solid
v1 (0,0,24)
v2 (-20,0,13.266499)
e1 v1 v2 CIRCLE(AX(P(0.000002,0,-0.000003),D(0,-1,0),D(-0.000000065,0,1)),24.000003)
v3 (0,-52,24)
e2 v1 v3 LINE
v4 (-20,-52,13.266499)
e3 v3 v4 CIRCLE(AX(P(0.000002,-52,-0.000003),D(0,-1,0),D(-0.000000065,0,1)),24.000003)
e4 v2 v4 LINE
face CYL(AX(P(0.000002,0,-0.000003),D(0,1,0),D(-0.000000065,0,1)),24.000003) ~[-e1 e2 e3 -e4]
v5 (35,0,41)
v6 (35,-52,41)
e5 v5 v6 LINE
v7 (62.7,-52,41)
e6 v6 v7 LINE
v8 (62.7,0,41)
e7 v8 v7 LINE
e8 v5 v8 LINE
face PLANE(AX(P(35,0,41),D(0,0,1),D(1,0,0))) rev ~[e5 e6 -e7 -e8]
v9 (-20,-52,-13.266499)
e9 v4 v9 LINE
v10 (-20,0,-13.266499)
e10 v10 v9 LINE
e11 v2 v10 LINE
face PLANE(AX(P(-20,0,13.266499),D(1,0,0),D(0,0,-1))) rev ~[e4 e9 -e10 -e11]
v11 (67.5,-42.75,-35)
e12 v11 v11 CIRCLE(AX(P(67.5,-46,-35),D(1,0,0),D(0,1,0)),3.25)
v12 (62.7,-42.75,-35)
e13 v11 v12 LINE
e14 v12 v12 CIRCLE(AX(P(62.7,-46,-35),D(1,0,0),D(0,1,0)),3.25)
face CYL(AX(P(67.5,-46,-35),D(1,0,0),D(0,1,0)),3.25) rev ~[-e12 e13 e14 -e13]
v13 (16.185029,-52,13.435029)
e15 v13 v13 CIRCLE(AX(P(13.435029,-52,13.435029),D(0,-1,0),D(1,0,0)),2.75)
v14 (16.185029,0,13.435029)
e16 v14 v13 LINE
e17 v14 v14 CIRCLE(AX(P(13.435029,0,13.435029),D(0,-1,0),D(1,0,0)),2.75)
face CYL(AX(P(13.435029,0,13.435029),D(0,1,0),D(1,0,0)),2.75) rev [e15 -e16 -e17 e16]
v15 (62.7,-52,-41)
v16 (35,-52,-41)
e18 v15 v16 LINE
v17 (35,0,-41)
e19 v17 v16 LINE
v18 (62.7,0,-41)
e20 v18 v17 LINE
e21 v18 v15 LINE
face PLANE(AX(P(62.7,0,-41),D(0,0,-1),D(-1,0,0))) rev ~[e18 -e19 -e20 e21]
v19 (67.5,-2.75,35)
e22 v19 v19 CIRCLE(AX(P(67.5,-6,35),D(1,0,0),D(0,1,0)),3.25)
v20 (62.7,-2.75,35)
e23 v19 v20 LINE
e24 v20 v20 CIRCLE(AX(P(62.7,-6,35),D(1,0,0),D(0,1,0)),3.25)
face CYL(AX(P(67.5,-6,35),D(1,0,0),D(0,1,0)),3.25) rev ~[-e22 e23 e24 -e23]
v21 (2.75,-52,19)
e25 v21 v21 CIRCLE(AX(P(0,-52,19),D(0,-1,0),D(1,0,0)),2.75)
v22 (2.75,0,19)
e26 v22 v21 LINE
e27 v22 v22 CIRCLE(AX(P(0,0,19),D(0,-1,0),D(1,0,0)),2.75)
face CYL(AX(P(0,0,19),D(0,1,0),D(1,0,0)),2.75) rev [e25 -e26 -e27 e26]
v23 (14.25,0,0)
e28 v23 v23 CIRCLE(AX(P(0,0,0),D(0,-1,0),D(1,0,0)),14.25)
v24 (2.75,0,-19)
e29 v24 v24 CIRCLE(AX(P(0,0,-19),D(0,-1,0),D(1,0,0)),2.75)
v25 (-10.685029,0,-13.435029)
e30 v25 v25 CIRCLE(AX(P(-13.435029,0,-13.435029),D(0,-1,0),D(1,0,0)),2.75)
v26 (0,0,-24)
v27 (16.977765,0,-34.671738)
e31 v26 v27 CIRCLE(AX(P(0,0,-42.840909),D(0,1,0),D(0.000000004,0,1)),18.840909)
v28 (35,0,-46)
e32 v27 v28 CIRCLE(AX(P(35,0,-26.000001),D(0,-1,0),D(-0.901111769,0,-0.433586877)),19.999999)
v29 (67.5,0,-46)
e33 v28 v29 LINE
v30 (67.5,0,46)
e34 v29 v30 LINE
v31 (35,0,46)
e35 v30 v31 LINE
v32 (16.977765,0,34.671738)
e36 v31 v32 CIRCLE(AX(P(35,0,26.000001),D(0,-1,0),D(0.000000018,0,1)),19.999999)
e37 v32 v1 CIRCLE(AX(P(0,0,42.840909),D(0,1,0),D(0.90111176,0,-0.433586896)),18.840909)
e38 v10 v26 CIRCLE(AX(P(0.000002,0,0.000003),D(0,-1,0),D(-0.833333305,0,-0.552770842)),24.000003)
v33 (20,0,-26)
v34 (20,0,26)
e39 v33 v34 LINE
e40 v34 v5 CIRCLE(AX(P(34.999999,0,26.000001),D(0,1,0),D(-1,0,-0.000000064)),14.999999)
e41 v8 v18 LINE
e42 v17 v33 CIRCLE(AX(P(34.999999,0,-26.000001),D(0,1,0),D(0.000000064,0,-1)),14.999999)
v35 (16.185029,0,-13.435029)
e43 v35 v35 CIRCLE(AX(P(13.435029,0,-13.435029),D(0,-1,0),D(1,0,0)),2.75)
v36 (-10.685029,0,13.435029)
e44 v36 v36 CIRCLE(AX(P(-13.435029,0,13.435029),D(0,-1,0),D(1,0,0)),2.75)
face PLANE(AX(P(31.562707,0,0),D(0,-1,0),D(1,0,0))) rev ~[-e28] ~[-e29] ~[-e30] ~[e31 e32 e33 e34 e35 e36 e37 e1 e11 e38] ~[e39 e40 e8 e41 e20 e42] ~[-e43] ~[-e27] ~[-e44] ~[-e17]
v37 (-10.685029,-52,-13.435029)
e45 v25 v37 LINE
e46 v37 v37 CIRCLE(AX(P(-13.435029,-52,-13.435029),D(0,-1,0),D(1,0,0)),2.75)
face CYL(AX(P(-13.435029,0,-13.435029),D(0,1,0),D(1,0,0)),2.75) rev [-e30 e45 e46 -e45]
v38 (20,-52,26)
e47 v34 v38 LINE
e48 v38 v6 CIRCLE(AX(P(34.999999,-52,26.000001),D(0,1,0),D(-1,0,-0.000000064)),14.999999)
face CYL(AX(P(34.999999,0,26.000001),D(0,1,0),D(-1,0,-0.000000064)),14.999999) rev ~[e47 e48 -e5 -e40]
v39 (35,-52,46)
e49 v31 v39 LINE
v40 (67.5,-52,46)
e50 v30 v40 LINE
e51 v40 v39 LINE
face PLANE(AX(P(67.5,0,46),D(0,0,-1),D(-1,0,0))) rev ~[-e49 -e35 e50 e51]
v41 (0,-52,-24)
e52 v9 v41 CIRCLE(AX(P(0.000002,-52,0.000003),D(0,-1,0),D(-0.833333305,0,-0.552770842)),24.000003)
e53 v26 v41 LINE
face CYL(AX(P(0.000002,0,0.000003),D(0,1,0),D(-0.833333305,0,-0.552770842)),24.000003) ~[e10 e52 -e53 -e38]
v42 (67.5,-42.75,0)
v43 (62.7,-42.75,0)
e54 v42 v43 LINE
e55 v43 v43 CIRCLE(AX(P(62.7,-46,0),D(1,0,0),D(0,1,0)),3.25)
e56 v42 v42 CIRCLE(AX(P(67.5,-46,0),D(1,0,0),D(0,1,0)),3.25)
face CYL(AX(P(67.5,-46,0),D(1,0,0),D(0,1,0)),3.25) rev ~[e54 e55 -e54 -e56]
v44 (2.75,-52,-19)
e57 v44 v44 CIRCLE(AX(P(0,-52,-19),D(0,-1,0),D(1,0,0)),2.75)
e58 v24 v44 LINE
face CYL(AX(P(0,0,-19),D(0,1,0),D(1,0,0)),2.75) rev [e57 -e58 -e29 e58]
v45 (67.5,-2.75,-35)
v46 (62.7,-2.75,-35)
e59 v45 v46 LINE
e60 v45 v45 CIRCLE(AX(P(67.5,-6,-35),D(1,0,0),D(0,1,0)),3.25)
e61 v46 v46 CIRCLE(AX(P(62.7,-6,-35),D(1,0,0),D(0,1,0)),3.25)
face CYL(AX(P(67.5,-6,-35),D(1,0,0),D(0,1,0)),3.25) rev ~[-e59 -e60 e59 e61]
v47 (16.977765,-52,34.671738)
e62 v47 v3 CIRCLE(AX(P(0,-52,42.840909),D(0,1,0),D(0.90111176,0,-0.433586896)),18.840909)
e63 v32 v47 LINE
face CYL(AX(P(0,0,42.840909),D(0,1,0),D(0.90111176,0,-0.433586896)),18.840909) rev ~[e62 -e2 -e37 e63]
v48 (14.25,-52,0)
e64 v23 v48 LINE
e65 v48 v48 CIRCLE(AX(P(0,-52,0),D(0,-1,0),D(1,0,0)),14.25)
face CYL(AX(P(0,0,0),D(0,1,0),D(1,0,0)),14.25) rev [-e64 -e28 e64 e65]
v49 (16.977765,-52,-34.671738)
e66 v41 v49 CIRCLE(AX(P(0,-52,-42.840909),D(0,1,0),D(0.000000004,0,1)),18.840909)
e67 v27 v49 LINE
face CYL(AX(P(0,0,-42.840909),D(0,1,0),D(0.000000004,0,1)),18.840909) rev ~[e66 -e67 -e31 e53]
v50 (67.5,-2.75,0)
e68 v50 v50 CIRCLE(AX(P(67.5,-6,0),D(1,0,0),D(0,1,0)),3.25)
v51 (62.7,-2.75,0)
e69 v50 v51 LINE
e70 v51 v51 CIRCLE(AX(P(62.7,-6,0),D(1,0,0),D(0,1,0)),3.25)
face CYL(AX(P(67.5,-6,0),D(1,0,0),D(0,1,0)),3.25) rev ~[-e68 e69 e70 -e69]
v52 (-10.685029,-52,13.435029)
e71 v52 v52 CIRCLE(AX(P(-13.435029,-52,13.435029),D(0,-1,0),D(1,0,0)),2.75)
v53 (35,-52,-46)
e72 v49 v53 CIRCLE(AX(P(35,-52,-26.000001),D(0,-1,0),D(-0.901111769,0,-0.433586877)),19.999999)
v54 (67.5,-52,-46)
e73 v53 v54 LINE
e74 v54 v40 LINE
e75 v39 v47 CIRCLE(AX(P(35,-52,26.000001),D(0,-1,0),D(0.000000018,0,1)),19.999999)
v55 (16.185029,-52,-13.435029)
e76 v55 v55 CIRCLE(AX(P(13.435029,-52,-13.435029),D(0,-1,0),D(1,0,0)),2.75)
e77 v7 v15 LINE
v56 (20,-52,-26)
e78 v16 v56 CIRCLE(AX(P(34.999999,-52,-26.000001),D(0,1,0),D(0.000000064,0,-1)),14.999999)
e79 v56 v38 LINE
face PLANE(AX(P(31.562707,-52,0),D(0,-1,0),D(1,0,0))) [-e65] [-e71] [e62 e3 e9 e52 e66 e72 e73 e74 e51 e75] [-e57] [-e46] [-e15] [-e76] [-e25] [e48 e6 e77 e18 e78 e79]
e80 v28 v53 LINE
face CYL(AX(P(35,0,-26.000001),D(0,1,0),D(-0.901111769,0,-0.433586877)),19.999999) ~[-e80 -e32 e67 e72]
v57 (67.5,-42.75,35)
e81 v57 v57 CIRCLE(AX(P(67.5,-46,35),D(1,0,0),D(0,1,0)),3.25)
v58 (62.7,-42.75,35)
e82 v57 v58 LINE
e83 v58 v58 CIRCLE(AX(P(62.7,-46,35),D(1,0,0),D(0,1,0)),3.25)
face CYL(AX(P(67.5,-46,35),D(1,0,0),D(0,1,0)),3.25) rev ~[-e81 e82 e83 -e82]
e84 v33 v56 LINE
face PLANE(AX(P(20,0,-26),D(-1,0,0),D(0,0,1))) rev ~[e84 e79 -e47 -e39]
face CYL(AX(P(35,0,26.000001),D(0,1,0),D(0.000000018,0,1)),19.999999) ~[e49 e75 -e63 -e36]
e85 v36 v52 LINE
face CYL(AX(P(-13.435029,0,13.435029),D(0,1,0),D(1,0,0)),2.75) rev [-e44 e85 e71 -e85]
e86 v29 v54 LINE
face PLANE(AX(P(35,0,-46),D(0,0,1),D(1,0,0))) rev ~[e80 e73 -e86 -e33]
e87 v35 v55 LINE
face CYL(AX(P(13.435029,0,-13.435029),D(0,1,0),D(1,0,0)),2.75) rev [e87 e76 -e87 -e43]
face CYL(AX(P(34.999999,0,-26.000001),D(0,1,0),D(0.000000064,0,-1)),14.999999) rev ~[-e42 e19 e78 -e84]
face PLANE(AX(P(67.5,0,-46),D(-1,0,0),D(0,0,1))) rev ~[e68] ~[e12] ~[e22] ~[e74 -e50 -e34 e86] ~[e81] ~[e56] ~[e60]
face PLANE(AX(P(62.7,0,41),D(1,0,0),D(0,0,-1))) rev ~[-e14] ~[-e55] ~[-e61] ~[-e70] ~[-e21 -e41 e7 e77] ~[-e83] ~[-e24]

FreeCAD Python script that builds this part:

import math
import FreeCAD as App
import Part
import Sketcher

doc = App.newDocument("Part")
body = doc.addObject("PartDesign::Body", "Body")

# Sketch on XZ plane
sketch1 = body.newObject("Sketcher::SketchObject", "Sketch")
sketch1.AttachmentSupport = (doc.getObject("XZ_Plane"), [""])
sketch1.MapMode = "FlatFace"
sketch1.addGeometry(Part.ArcOfCircle(Part.Circle(App.Vector(0, 0, 0), App.Vector(0, 0, 1), 24), math.radians(90), math.radians(146)), False)
sketch1.addGeometry(Part.LineSegment(App.Vector(-20, 13.3, 0), App.Vector(-20, -13.3, 0)), False)
sketch1.addGeometry(Part.ArcOfCircle(Part.Circle(App.Vector(0, 0, 0), App.Vector(0, 0, 1), 24), math.radians(-146), math.radians(-90)), False)
sketch1.addGeometry(Part.ArcOfCircle(Part.Circle(App.Vector(0, -42.8, 0), App.Vector(0, 0, 1), 18.8), math.radians(26), math.radians(90)), False)
sketch1.addGeometry(Part.ArcOfCircle(Part.Circle(App.Vector(35, -26, 0), App.Vector(0, 0, 1), 20), math.radians(-154), math.radians(-90)), False)
sketch1.addGeometry(Part.LineSegment(App.Vector(35, -46, 0), App.Vector(67.5, -46, 0)), False)
sketch1.addGeometry(Part.LineSegment(App.Vector(67.5, -46, 0), App.Vector(67.5, 46, 0)), False)
sketch1.addGeometry(Part.LineSegment(App.Vector(67.5, 46, 0), App.Vector(35, 46, 0)), False)
sketch1.addGeometry(Part.ArcOfCircle(Part.Circle(App.Vector(35, 26, 0), App.Vector(0, 0, 1), 20), math.radians(90), math.radians(154)), False)
sketch1.addGeometry(Part.ArcOfCircle(Part.Circle(App.Vector(0, 42.8, 0), App.Vector(0, 0, 1), 18.8), math.radians(-90), math.radians(-26)), False)
sketch1.addGeometry(Part.Circle(App.Vector(-13.4, -13.4, 0), App.Vector(0, 0, 1), 2.8), False)
sketch1.addGeometry(Part.Circle(App.Vector(0, -19, 0), App.Vector(0, 0, 1), 2.8), False)
sketch1.addGeometry(Part.Circle(App.Vector(13.4, -13.4, 0), App.Vector(0, 0, 1), 2.8), False)
sketch1.addGeometry(Part.Circle(App.Vector(0, 0, 0), App.Vector(0, 0, 1), 14.2), False)
sketch1.addGeometry(Part.Circle(App.Vector(-13.4, 13.4, 0), App.Vector(0, 0, 1), 2.8), False)
sketch1.addGeometry(Part.Circle(App.Vector(0, 19, 0), App.Vector(0, 0, 1), 2.8), False)
sketch1.addGeometry(Part.Circle(App.Vector(13.4, 13.4, 0), App.Vector(0, 0, 1), 2.8), False)
sketch1.addGeometry(Part.ArcOfCircle(Part.Circle(App.Vector(35, 26, 0), App.Vector(0, 0, 1), 15), math.radians(90), math.radians(180)), False)
sketch1.addGeometry(Part.LineSegment(App.Vector(35, 41, 0), App.Vector(62.7, 41, 0)), False)
sketch1.addGeometry(Part.LineSegment(App.Vector(62.7, 41, 0), App.Vector(62.7, -41, 0)), False)
sketch1.addGeometry(Part.LineSegment(App.Vector(62.7, -41, 0), App.Vector(35, -41, 0)), False)
sketch1.addGeometry(Part.ArcOfCircle(Part.Circle(App.Vector(35, -26, 0), App.Vector(0, 0, 1), 15), math.radians(180), math.radians(270)), False)
sketch1.addGeometry(Part.LineSegment(App.Vector(20, -26, 0), App.Vector(20, 26, 0)), False)
sketch1.addConstraint(Sketcher.Constraint("Coincident", 0, 2, 1, 1))
sketch1.addConstraint(Sketcher.Constraint("Coincident", 1, 2, 2, 1))
sketch1.addConstraint(Sketcher.Constraint("Tangent", 2, 2, 3, 2))
sketch1.addConstraint(Sketcher.Constraint("Tangent", 3, 1, 4, 1))
sketch1.addConstraint(Sketcher.Constraint("Tangent", 4, 2, 5, 1))
sketch1.addConstraint(Sketcher.Constraint("Coincident", 5, 2, 6, 1))
sketch1.addConstraint(Sketcher.Constraint("Coincident", 6, 2, 7, 1))
sketch1.addConstraint(Sketcher.Constraint("Tangent", 7, 2, 8, 1))
sketch1.addConstraint(Sketcher.Constraint("Tangent", 8, 2, 9, 2))
sketch1.addConstraint(Sketcher.Constraint("Tangent", 9, 1, 0, 1))
sketch1.addConstraint(Sketcher.Constraint("Tangent", 17, 1, 18, 1))
sketch1.addConstraint(Sketcher.Constraint("Coincident", 18, 2, 19, 1))
sketch1.addConstraint(Sketcher.Constraint("Coincident", 19, 2, 20, 1))
sketch1.addConstraint(Sketcher.Constraint("Tangent", 20, 2, 21, 2))
sketch1.addConstraint(Sketcher.Constraint("Tangent", 21, 1, 22, 1))
sketch1.addConstraint(Sketcher.Constraint("Tangent", 22, 2, 17, 2))
sketch1.addConstraint(Sketcher.Constraint("Vertical", 1))
sketch1.addConstraint(Sketcher.Constraint("Horizontal", 5))
sketch1.addConstraint(Sketcher.Constraint("Vertical", 6))
sketch1.addConstraint(Sketcher.Constraint("Horizontal", 7))
sketch1.addConstraint(Sketcher.Constraint("Horizontal", 18))
sketch1.addConstraint(Sketcher.Constraint("Vertical", 19))
sketch1.addConstraint(Sketcher.Constraint("Horizontal", 20))
sketch1.addConstraint(Sketcher.Constraint("Vertical", 22))
sketch1.addConstraint(Sketcher.Constraint("Coincident", 0, 3, -1, 1))
sketch1.addConstraint(Sketcher.Constraint("Coincident", 2, 3, -1, 1))
sketch1.addConstraint(Sketcher.Constraint("Coincident", 13, 3, -1, 1))
sketch1.addConstraint(Sketcher.Constraint("Coincident", 17, 3, 8, 3))
sketch1.addConstraint(Sketcher.Constraint("Coincident", 21, 3, 4, 3))
sketch1.addConstraint(Sketcher.Constraint("Equal", 0, 2))
sketch1.addConstraint(Sketcher.Constraint("Equal", 4, 8))
sketch1.addConstraint(Sketcher.Constraint("Equal", 3, 9))
sketch1.addConstraint(Sketcher.Constraint("Equal", 10, 11))
sketch1.addConstraint(Sketcher.Constraint("Equal", 11, 12))
sketch1.addConstraint(Sketcher.Constraint("Equal", 12, 14))
sketch1.addConstraint(Sketcher.Constraint("Equal", 14, 15))
sketch1.addConstraint(Sketcher.Constraint("Equal", 15, 16))
sketch1.addConstraint(Sketcher.Constraint("Equal", 17, 21))
sketch1.addConstraint(Sketcher.Constraint("Symmetric", 12, 3, 14, 3, -1, 1))
sketch1.addConstraint(Sketcher.Constraint("Symmetric", 11, 3, 15, 3, -1, 1))
sketch1.addConstraint(Sketcher.Constraint("Symmetric", 10, 3, 16, 3, -1, 1))
sketch1.addConstraint(Sketcher.Constraint("Symmetric", 10, 3, 12, 3, -2))
sketch1.addConstraint(Sketcher.Constraint("PointOnObject", 3, 3, -2))
sketch1.addConstraint(Sketcher.Constraint("PointOnObject", 9, 3, -2))
sketch1.addConstraint(Sketcher.Constraint("PointOnObject", 11, 3, -2))
sketch1.addConstraint(Sketcher.Constraint("Radius", 4, 19.999999))
sketch1.addConstraint(Sketcher.Constraint("Radius", 17, 14.999999))
sketch1.addConstraint(Sketcher.Constraint("Diameter", 10, 5.5))
sketch1.addConstraint(Sketcher.Constraint("Diameter", 13, 28.5))
sketch1.addConstraint(Sketcher.Constraint("DistanceY", 6, 1, 6, 2, 92.0))
sketch1.addConstraint(Sketcher.Constraint("DistanceX", 5, 1, 5, 2, 32.5))
sketch1.addConstraint(Sketcher.Constraint("DistanceX", 18, 1, 18, 2, 27.7))
sketch1.addConstraint(Sketcher.Constraint("DistanceX", -1, 1, 4, 3, 35.0))
sketch1.addConstraint(Sketcher.Constraint("DistanceY", 11, 3, -1, 1, 19.0))
sketch1.addConstraint(Sketcher.Constraint("DistanceX", 0, 2, -1, 1, 20.0))
sketch1.addConstraint(Sketcher.Constraint("DistanceY", 2, 2, -1, 1, 24.0))
sketch1.addConstraint(Sketcher.Constraint("DistanceX", 10, 3, -1, 1, 13.435029))
sketch1.addConstraint(Sketcher.Constraint("DistanceY", 10, 3, -1, 1, 13.435029))
pad1 = body.newObject("PartDesign::Pad", "Pad")
pad1.Profile = sketch1
pad1.Length = 52

# Sketch on YZ plane
sketch2 = body.newObject("Sketcher::SketchObject", "Sketch001")
sketch2.AttachmentSupport = (doc.getObject("YZ_Plane"), [""])
sketch2.MapMode = "FlatFace"
sketch2.AttachmentOffset = App.Placement(App.Vector(0, 0, 67.5), App.Rotation())
sketch2.addGeometry(Part.Circle(App.Vector(-46, 35, 0), App.Vector(0, 0, 1), 3.2), False)
sketch2.addGeometry(Part.Circle(App.Vector(-46, 0, 0), App.Vector(0, 0, 1), 3.2), False)
sketch2.addGeometry(Part.Circle(App.Vector(-46, -35, 0), App.Vector(0, 0, 1), 3.2), False)
sketch2.addGeometry(Part.Circle(App.Vector(-6, 35, 0), App.Vector(0, 0, 1), 3.2), False)
sketch2.addGeometry(Part.Circle(App.Vector(-6, 0, 0), App.Vector(0, 0, 1), 3.2), False)
sketch2.addGeometry(Part.Circle(App.Vector(-6, -35, 0), App.Vector(0, 0, 1), 3.2), False)
sketch2.addConstraint(Sketcher.Constraint("Equal", 0, 1))
sketch2.addConstraint(Sketcher.Constraint("Equal", 1, 2))
sketch2.addConstraint(Sketcher.Constraint("Equal", 2, 3))
sketch2.addConstraint(Sketcher.Constraint("Equal", 3, 4))
sketch2.addConstraint(Sketcher.Constraint("Equal", 4, 5))
sketch2.addConstraint(Sketcher.Constraint("Symmetric", 0, 3, 2, 3, -1))
sketch2.addConstraint(Sketcher.Constraint("Symmetric", 3, 3, 5, 3, -1))
sketch2.addConstraint(Sketcher.Constraint("PointOnObject", 1, 3, -1))
sketch2.addConstraint(Sketcher.Constraint("PointOnObject", 4, 3, -1))
sketch2.addConstraint(Sketcher.Constraint("Horizontal", 0, 3, 3, 3))
sketch2.addConstraint(Sketcher.Constraint("Vertical", 0, 3, 1, 3))
sketch2.addConstraint(Sketcher.Constraint("Vertical", 3, 3, 4, 3))
sketch2.addConstraint(Sketcher.Constraint("Diameter", 0, 6.5))
sketch2.addConstraint(Sketcher.Constraint("DistanceX", 0, 3, -1, 1, 46.0))
sketch2.addConstraint(Sketcher.Constraint("DistanceY", -1, 1, 0, 3, 35.0))
sketch2.addConstraint(Sketcher.Constraint("DistanceX", 3, 3, -1, 1, 6.0))
pocket1 = body.newObject("PartDesign::Pocket", "Pocket")
pocket1.Profile = sketch2
pocket1.Length = 4.8

doc.recompute()
